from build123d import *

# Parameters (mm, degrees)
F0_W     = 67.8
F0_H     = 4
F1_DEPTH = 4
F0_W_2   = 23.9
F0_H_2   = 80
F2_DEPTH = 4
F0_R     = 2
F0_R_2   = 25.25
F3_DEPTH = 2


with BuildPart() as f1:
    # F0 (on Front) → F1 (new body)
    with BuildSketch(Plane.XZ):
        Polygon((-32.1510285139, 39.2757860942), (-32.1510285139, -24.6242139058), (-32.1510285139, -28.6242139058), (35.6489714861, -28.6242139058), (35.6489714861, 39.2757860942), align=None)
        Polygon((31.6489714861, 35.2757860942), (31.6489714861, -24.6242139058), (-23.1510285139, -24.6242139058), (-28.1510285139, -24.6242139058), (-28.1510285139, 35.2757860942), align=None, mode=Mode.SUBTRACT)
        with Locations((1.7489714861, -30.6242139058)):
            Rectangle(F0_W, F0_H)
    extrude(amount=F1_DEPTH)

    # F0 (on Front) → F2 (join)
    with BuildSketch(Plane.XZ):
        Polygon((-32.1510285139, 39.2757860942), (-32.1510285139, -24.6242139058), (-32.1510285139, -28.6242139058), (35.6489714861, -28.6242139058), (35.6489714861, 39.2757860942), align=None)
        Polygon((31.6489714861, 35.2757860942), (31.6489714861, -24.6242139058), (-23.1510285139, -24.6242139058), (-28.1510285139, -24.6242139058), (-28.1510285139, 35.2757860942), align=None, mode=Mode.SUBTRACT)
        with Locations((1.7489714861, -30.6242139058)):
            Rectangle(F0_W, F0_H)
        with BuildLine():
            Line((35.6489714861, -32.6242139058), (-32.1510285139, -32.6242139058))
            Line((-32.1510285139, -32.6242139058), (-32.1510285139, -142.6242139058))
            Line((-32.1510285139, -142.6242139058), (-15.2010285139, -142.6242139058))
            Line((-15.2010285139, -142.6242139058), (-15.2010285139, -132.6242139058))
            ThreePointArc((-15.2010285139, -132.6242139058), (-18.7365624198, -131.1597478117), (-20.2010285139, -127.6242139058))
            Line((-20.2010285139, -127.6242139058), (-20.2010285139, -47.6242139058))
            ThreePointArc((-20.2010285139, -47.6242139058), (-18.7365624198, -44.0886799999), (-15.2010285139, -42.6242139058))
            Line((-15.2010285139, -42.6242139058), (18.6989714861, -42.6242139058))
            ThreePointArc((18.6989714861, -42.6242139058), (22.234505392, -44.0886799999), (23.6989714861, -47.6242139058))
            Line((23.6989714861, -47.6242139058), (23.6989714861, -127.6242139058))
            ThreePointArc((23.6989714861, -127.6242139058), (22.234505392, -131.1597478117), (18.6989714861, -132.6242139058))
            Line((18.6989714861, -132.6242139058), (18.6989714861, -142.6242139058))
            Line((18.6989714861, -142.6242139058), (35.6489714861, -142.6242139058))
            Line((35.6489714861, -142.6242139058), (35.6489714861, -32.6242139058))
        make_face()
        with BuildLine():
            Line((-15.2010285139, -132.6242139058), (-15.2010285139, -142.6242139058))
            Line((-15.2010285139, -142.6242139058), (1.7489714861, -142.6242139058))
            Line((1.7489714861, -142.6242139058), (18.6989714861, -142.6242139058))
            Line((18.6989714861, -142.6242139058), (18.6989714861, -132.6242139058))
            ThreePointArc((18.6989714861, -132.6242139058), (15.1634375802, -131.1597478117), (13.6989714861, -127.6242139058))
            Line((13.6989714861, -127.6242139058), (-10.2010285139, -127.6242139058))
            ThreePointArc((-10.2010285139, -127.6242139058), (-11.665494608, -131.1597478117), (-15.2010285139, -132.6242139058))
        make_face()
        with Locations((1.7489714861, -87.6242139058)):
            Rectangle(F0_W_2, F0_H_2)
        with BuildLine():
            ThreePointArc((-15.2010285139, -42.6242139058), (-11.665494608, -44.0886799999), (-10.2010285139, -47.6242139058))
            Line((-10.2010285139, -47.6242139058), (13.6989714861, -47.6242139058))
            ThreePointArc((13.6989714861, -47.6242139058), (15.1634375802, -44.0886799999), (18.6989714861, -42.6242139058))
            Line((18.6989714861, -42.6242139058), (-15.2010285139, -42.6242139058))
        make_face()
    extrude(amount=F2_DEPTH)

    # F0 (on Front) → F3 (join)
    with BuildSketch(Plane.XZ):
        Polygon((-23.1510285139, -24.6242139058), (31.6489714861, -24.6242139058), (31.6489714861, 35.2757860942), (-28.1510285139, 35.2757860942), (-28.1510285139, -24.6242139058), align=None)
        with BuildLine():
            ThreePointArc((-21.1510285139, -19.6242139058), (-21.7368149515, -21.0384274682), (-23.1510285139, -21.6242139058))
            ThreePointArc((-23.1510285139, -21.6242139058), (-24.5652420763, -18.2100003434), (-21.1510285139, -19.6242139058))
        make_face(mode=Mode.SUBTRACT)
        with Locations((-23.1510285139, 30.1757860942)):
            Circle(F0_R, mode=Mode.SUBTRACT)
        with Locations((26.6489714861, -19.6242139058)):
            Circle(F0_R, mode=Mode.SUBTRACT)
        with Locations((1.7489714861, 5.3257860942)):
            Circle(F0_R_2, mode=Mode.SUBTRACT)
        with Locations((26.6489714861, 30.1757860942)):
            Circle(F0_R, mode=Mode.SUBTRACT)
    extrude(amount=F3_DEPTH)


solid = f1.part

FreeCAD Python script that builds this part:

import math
import FreeCAD as App
import Part
import Sketcher
from FreeCAD import Vector


def add_polygon(sketch, points):
    """Adds a closed chain of lines whose ends are joined by coincident constraints."""
    first, n = sketch.GeometryCount, len(points)
    for a, b in zip(points, points[1:] + points[:1]):
        sketch.addGeometry(Part.LineSegment(App.Vector(*a, 0), App.Vector(*b, 0)), False)
    for i in range(n):
        sketch.addConstraint(Sketcher.Constraint("Coincident", first + i, 2, first + (i + 1) % n, 1))

doc = App.newDocument("Part")
body = doc.addObject("PartDesign::Body", "Body")

sketch1 = doc.addObject("Sketcher::SketchObject", "Sketch")
body.addObject(sketch1)
sketch1.AttachmentSupport = (doc.XZ_Plane, [""])
sketch1.MapMode = "FlatFace"
add_polygon(sketch1, [(-32.151029, 39.275786), (-32.151029, -32.624214), (35.648971, -32.624214), (35.648971, 39.275786)])
add_polygon(sketch1, [(-28.151029, 35.275786), (31.648971, 35.275786), (31.648971, -24.624214), (-28.151029, -24.624214)])
sketch1.addConstraint([
    Sketcher.Constraint("Vertical", 0),
    Sketcher.Constraint("Horizontal", 1),
    Sketcher.Constraint("Vertical", 2),
    Sketcher.Constraint("Horizontal", 3),
    Sketcher.Constraint("Horizontal", 4),
    Sketcher.Constraint("Vertical", 5),
    Sketcher.Constraint("Horizontal", 6),
    Sketcher.Constraint("Vertical", 7),
    Sketcher.Constraint("DistanceX", 1, 1, 1, 2, 67.8),
    Sketcher.Constraint("DistanceX", 4, 1, 4, 2, 59.8),
    Sketcher.Constraint("DistanceY", 0, 2, 0, 1, 71.9),
    Sketcher.Constraint("DistanceY", 5, 2, 5, 1, 59.9),
    Sketcher.Constraint("DistanceX", 4, 2, 2, 2, 4.0),
    Sketcher.Constraint("DistanceY", 4, 2, 2, 2, 4.0),
    Sketcher.Constraint("DistanceX", 0, 2, -1, 1, 32.151029),
    Sketcher.Constraint("DistanceY", 0, 2, -1, 1, 32.624214),
])
pad1 = doc.addObject("PartDesign::Pad", "Pad")
body.addObject(pad1)
pad1.Profile = sketch1
pad1.Length = 4

sketch2 = doc.addObject("Sketcher::SketchObject", "Sketch001")
body.addObject(sketch2)
sketch2.AttachmentSupport = (doc.XZ_Plane, [""])
sketch2.MapMode = "FlatFace"
add_polygon(sketch2, [(-32.151029, 39.275786), (-32.151029, -142.624214), (35.648971, -142.624214), (35.648971, 39.275786)])
sketch2.addGeometry(Part.ArcOfCircle(Part.Circle(Vector(-15.201029, -127.624214, 0), Vector(0, 0, 1), 5), math.radians(180), math.radians(270)), False)
sketch2.addGeometry(Part.LineSegment(Vector(-20.201029, -127.624214, 0), Vector(-20.201029, -47.624214, 0)), False)
sketch2.addGeometry(Part.ArcOfCircle(Part.Circle(Vector(-15.201029, -47.624214, 0), Vector(0, 0, 1), 5), math.radians(90), math.radians(180)), False)
sketch2.addGeometry(Part.ArcOfCircle(Part.Circle(Vector(-15.201029, -47.624214, 0), Vector(0, 0, 1), 5), math.radians(0), math.radians(90)), False)
sketch2.addGeometry(Part.LineSegment(Vector(-10.201029, -47.624214, 0), Vector(-10.201029, -127.624214, 0)), False)
sketch2.addGeometry(Part.ArcOfCircle(Part.Circle(Vector(-15.201029, -127.624214, 0), Vector(0, 0, 1), 5), math.radians(-90), math.radians(0)), False)
sketch2.addGeometry(Part.ArcOfCircle(Part.Circle(Vector(18.698971, -47.624214, 0), Vector(0, 0, 1), 5), math.radians(0), math.radians(90)), False)
sketch2.addGeometry(Part.LineSegment(Vector(23.698971, -47.624214, 0), Vector(23.698971, -127.624214, 0)), False)
sketch2.addGeometry(Part.ArcOfCircle(Part.Circle(Vector(18.698971, -127.624214, 0), Vector(0, 0, 1), 5), math.radians(-90), math.radians(0)), False)
sketch2.addGeometry(Part.ArcOfCircle(Part.Circle(Vector(18.698971, -127.624214, 0), Vector(0, 0, 1), 5), math.radians(180), math.radians(270)), False)
sketch2.addGeometry(Part.LineSegment(Vector(13.698971, -127.624214, 0), Vector(13.698971, -47.624214, 0)), False)
sketch2.addGeometry(Part.ArcOfCircle(Part.Circle(Vector(18.698971, -47.624214, 0), Vector(0, 0, 1), 5), math.radians(90), math.radians(180)), False)
add_polygon(sketch2, [(-28.151029, 35.275786), (31.648971, 35.275786), (31.648971, -24.624214), (-28.151029, -24.624214)])
sketch2.addConstraint([
    Sketcher.Constraint("Tangent", 4, 1, 5, 1),
    Sketcher.Constraint("Tangent", 5, 2, 6, 2),
    Sketcher.Constraint("Tangent", 6, 1, 7, 2),
    Sketcher.Constraint("Tangent", 7, 1, 8, 1),
    Sketcher.Constraint("Tangent", 8, 2, 9, 2),
    Sketcher.Constraint("Tangent", 9, 1, 4, 2),
    Sketcher.Constraint("Tangent", 10, 1, 11, 1),
    Sketcher.Constraint("Tangent", 11, 2, 12, 2),
    Sketcher.Constraint("Tangent", 12, 1, 13, 2),
    Sketcher.Constraint("Tangent", 13, 1, 14, 1),
    Sketcher.Constraint("Tangent", 14, 2, 15, 2),
    Sketcher.Constraint("Tangent", 15, 1, 10, 2),
    Sketcher.Constraint("Vertical", 0),
    Sketcher.Constraint("Horizontal", 1),
    Sketcher.Constraint("Vertical", 2),
    Sketcher.Constraint("Horizontal", 3),
    Sketcher.Constraint("Vertical", 5),
    Sketcher.Constraint("Vertical", 8),
    Sketcher.Constraint("Vertical", 11),
    Sketcher.Constraint("Vertical", 14),
    Sketcher.Constraint("Horizontal", 16),
    Sketcher.Constraint("Vertical", 17),
    Sketcher.Constraint("Horizontal", 18),
    Sketcher.Constraint("Vertical", 19),
    Sketcher.Constraint("Equal", 4, 6),
    Sketcher.Constraint("Equal", 6, 7),
    Sketcher.Constraint("Equal", 9, 10),
    Sketcher.Constraint("Equal", 10, 12),
    Sketcher.Constraint("Equal", 12, 13),
    Sketcher.Constraint("Horizontal", 7, 3, 10, 3),
    Sketcher.Constraint("Horizontal", 9, 3, 12, 3),
    Sketcher.Constraint("Vertical", 9, 3, 6, 1),
    Sketcher.Constraint("Vertical", 6, 1, 9, 1),
    Sketcher.Constraint("Vertical", 15, 3, 12, 1),
    Sketcher.Constraint("Vertical", 12, 1, 15, 1),
    Sketcher.Constraint("Radius", 4, 5.0),
    Sketcher.Constraint("DistanceY", 5, 1, 5, 2, 80.0),
    Sketcher.Constraint("DistanceX", 1, 1, 1, 2, 67.8),
    Sketcher.Constraint("DistanceX", 16, 1, 16, 2, 59.8),
    Sketcher.Constraint("DistanceY", 0, 2, 0, 1, 181.9),
    Sketcher.Constraint("DistanceY", 17, 2, 17, 1, 59.9),
    Sketcher.Constraint("DistanceY", 0, 2, 4, 3, 15.0),
    Sketcher.Constraint("DistanceX", 16, 2, 2, 2, 4.0),
    Sketcher.Constraint("DistanceY", 16, 2, 2, 2, 4.0),
    Sketcher.Constraint("DistanceX", 6, 3, 10, 3, 33.9),
    Sketcher.Constraint("DistanceX", 0, 2, 4, 3, 16.95),
    Sketcher.Constraint("DistanceX", 4, 3, -1, 1, 15.201029),
    Sketcher.Constraint("DistanceY", 4, 3, -1, 1, 127.624214),
])
pad2 = doc.addObject("PartDesign::Pad", "Pad001")
body.addObject(pad2)
pad2.Profile = sketch2
pad2.Length = 4

sketch3 = doc.addObject("Sketcher::SketchObject", "Sketch002")
body.addObject(sketch3)
sketch3.AttachmentSupport = (doc.XZ_Plane, [""])
sketch3.MapMode = "FlatFace"
add_polygon(sketch3, [(31.648971, -24.624214), (31.648971, 35.275786), (-28.151029, 35.275786), (-28.151029, -24.624214)])
sketch3.addGeometry(Part.ArcOfCircle(Part.Circle(Vector(-23.151029, -19.624214, 0), Vector(0, 0, 1), 2), math.radians(0), math.radians(270)), False)
sketch3.addGeometry(Part.ArcOfCircle(Part.Circle(Vector(-23.151029, -19.624214, 0), Vector(0, 0, 1), 2), math.radians(-90), math.radians(0)), False)
sketch3.addGeometry(Part.Circle(Vector(26.648971, -19.624214, 0), Vector(0, 0, 1), 2), False)
sketch3.addGeometry(Part.Circle(Vector(-23.151029, 30.175786, 0), Vector(0, 0, 1), 2), False)
sketch3.addGeometry(Part.Circle(Vector(1.748971, 5.325786, 0), Vector(0, 0, 1), 25.25), False)
sketch3.addGeometry(Part.Circle(Vector(26.648971, 30.175786, 0), Vector(0, 0, 1), 2), False)
sketch3.addConstraint([
    Sketcher.Constraint("Tangent", 4, 1, 5, 2),
    Sketcher.Constraint("Coincident", 5, 1, 4, 2),
    Sketcher.Constraint("Vertical", 0),
    Sketcher.Constraint("Horizontal", 1),
    Sketcher.Constraint("Vertical", 2),
    Sketcher.Constraint("Horizontal", 3),
    Sketcher.Constraint("Equal", 5, 6),
    Sketcher.Constraint("Equal", 6, 7),
    Sketcher.Constraint("Equal", 7, 9),
    Sketcher.Constraint("Horizontal", 5, 3, 6, 3),
    Sketcher.Constraint("Horizontal", 7, 3, 9, 3),
    Sketcher.Constraint("Horizontal", 6, 3, 4, 1),
    Sketcher.Constraint("Vertical", 5, 3, 7, 3),
    Sketcher.Constraint("Vertical", 6, 3, 9, 3),
    Sketcher.Constraint("Vertical", 7, 3, 5, 1),
    Sketcher.Constraint("Diameter", 6, 4.0),
    Sketcher.Constraint("Diameter", 8, 50.5),
    Sketcher.Constraint("DistanceX", 1, 2, 1, 1, 59.8),
    Sketcher.Constraint("DistanceY", 0, 1, 0, 2, 59.9),
    Sketcher.Constraint("DistanceX", 9, 3, 0, 2, 5.0),
    Sketcher.Constraint("DistanceX", 1, 2, 7, 3, 5.0),
    Sketcher.Constraint("DistanceY", 2, 2, 4, 3, 5.0),
    Sketcher.Constraint("DistanceY", 4, 3, 7, 3, 49.8),
    Sketcher.Constraint("DistanceX", 7, 3, 8, 3, 24.9),
    Sketcher.Constraint("DistanceY", 8, 3, 7, 3, 24.85),
    Sketcher.Constraint("DistanceX", 4, 3, -1, 1, 23.151029),
    Sketcher.Constraint("DistanceY", 4, 3, -1, 1, 19.624214),
])
pad3 = doc.addObject("PartDesign::Pad", "Pad002")
body.addObject(pad3)
pad3.Profile = sketch3
pad3.Length = 2

doc.recompute()
